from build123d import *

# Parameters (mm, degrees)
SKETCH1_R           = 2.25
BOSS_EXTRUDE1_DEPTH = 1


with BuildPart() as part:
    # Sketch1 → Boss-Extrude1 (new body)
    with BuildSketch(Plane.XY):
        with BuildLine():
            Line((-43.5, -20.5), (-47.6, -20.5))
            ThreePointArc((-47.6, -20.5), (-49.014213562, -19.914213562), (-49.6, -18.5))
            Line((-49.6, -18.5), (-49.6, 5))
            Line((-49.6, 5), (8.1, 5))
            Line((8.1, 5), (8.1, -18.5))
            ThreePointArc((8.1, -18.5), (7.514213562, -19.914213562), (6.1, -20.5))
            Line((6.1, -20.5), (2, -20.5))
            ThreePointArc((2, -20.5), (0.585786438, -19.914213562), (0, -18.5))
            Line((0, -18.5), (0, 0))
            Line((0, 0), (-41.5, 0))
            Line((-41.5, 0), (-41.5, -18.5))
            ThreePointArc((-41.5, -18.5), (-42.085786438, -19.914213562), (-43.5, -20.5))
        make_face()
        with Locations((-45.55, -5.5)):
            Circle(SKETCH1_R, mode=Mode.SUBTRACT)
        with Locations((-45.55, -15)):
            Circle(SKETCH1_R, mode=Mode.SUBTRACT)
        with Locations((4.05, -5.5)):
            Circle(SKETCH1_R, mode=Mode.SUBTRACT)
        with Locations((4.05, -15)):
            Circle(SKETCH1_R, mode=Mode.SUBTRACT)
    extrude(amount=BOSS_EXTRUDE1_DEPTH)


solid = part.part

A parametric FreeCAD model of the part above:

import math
import FreeCAD as App
import Part
import Sketcher

doc = App.newDocument("Part")
body = doc.addObject("PartDesign::Body", "Body")

sketch1 = body.newObject("Sketcher::SketchObject", "Sketch")
sketch1.AttachmentSupport = (doc.getObject("XY_Plane"), [""])
sketch1.MapMode = "FlatFace"
sketch1.addGeometry([
    Part.LineSegment(App.Vector(-47.6, -20.5, 0), App.Vector(-43.5, -20.5, 0)),
    Part.ArcOfCircle(Part.Circle(App.Vector(-43.5, -18.5, 0), App.Vector(0, 0, 1), 2), math.radians(-90), math.radians(0)),
    Part.LineSegment(App.Vector(-41.5, -18.5, 0), App.Vector(-41.5, 0, 0)),
    Part.LineSegment(App.Vector(-41.5, 0, 0), App.Vector(0, 0, 0)),
    Part.LineSegment(App.Vector(0, 0, 0), App.Vector(0, -18.5, 0)),
    Part.ArcOfCircle(Part.Circle(App.Vector(2, -18.5, 0), App.Vector(0, 0, 1), 2), math.radians(-180), math.radians(-90)),
    Part.LineSegment(App.Vector(2, -20.5, 0), App.Vector(6.1, -20.5, 0)),
    Part.ArcOfCircle(Part.Circle(App.Vector(6.1, -18.5, 0), App.Vector(0, 0, 1), 2), math.radians(-90), math.radians(0)),
    Part.LineSegment(App.Vector(8.1, -18.5, 0), App.Vector(8.1, 5, 0)),
    Part.LineSegment(App.Vector(8.1, 5, 0), App.Vector(-49.6, 5, 0)),
    Part.LineSegment(App.Vector(-49.6, 5, 0), App.Vector(-49.6, -18.5, 0)),
    Part.ArcOfCircle(Part.Circle(App.Vector(-47.6, -18.5, 0), App.Vector(0, 0, 1), 2), math.radians(-180), math.radians(-90)),
    Part.Circle(App.Vector(4.05, -15, 0), App.Vector(0, 0, 1), 2.25),
    Part.Circle(App.Vector(-45.55, -15, 0), App.Vector(0, 0, 1), 2.25),
    Part.Circle(App.Vector(4.05, -5.5, 0), App.Vector(0, 0, 1), 2.25),
    Part.Circle(App.Vector(-45.55, -5.5, 0), App.Vector(0, 0, 1), 2.25),
], False)
sketch1.addConstraint([
    Sketcher.Constraint("Tangent", 0, 2, 1, 1),
    Sketcher.Constraint("Tangent", 1, 2, 2, 1),
    Sketcher.Constraint("Coincident", 2, 2, 3, 1),
    Sketcher.Constraint("Coincident", 3, 2, 4, 1),
    Sketcher.Constraint("Tangent", 4, 2, 5, 1),
    Sketcher.Constraint("Tangent", 5, 2, 6, 1),
    Sketcher.Constraint("Tangent", 6, 2, 7, 1),
    Sketcher.Constraint("Tangent", 7, 2, 8, 1),
    Sketcher.Constraint("Coincident", 8, 2, 9, 1),
    Sketcher.Constraint("Coincident", 9, 2, 10, 1),
    Sketcher.Constraint("Tangent", 10, 2, 11, 1),
    Sketcher.Constraint("Tangent", 11, 2, 0, 1),
    Sketcher.Constraint("Horizontal", 0),
    Sketcher.Constraint("Vertical", 2),
    Sketcher.Constraint("Horizontal", 3),
    Sketcher.Constraint("Vertical", 4),
    Sketcher.Constraint("Horizontal", 6),
    Sketcher.Constraint("Vertical", 8),
    Sketcher.Constraint("Horizontal", 9),
    Sketcher.Constraint("Vertical", 10),
    Sketcher.Constraint("Coincident", 3, 2, -1, 1),
    Sketcher.Constraint("Equal", 1, 5),
    Sketcher.Constraint("Equal", 5, 7),
    Sketcher.Constraint("Equal", 7, 11),
    Sketcher.Constraint("Equal", 12, 13),
    Sketcher.Constraint("Equal", 13, 14),
    Sketcher.Constraint("Equal", 14, 15),
    Sketcher.Constraint("Horizontal", 1, 3, 5, 3),
    Sketcher.Constraint("Horizontal", 12, 3, 13, 3),
    Sketcher.Constraint("Horizontal", 14, 3, 15, 3),
    Sketcher.Constraint("Vertical", 12, 3, 14, 3),
    Sketcher.Constraint("Vertical", 13, 3, 15, 3),
    Sketcher.Constraint("Equal", 0, 6),
    Sketcher.Constraint("Radius", 1, 2.0),
    Sketcher.Constraint("Diameter", 12, 4.5),
    Sketcher.Constraint("DistanceX", 0, 1, 0, 2, 4.1),
    Sketcher.Constraint("DistanceX", 3, 1, 3, 2, 41.5),
    Sketcher.Constraint("DistanceY", 2, 1, 2, 2, 18.5),
    Sketcher.Constraint("DistanceY", 8, 1, 8, 2, 23.5),
    Sketcher.Constraint("DistanceY", 12, 3, -1, 1, 15.0),
    Sketcher.Constraint("DistanceY", 5, 3, 14, 3, 13.0),
    Sketcher.Constraint("DistanceX", 13, 3, 12, 3, 49.6),
    Sketcher.Constraint("DistanceX", -1, 1, 12, 3, 4.05),
])
pad1 = body.newObject("PartDesign::Pad", "Pad")
pad1.Profile = sketch1
pad1.Length = 1

doc.recompute()
